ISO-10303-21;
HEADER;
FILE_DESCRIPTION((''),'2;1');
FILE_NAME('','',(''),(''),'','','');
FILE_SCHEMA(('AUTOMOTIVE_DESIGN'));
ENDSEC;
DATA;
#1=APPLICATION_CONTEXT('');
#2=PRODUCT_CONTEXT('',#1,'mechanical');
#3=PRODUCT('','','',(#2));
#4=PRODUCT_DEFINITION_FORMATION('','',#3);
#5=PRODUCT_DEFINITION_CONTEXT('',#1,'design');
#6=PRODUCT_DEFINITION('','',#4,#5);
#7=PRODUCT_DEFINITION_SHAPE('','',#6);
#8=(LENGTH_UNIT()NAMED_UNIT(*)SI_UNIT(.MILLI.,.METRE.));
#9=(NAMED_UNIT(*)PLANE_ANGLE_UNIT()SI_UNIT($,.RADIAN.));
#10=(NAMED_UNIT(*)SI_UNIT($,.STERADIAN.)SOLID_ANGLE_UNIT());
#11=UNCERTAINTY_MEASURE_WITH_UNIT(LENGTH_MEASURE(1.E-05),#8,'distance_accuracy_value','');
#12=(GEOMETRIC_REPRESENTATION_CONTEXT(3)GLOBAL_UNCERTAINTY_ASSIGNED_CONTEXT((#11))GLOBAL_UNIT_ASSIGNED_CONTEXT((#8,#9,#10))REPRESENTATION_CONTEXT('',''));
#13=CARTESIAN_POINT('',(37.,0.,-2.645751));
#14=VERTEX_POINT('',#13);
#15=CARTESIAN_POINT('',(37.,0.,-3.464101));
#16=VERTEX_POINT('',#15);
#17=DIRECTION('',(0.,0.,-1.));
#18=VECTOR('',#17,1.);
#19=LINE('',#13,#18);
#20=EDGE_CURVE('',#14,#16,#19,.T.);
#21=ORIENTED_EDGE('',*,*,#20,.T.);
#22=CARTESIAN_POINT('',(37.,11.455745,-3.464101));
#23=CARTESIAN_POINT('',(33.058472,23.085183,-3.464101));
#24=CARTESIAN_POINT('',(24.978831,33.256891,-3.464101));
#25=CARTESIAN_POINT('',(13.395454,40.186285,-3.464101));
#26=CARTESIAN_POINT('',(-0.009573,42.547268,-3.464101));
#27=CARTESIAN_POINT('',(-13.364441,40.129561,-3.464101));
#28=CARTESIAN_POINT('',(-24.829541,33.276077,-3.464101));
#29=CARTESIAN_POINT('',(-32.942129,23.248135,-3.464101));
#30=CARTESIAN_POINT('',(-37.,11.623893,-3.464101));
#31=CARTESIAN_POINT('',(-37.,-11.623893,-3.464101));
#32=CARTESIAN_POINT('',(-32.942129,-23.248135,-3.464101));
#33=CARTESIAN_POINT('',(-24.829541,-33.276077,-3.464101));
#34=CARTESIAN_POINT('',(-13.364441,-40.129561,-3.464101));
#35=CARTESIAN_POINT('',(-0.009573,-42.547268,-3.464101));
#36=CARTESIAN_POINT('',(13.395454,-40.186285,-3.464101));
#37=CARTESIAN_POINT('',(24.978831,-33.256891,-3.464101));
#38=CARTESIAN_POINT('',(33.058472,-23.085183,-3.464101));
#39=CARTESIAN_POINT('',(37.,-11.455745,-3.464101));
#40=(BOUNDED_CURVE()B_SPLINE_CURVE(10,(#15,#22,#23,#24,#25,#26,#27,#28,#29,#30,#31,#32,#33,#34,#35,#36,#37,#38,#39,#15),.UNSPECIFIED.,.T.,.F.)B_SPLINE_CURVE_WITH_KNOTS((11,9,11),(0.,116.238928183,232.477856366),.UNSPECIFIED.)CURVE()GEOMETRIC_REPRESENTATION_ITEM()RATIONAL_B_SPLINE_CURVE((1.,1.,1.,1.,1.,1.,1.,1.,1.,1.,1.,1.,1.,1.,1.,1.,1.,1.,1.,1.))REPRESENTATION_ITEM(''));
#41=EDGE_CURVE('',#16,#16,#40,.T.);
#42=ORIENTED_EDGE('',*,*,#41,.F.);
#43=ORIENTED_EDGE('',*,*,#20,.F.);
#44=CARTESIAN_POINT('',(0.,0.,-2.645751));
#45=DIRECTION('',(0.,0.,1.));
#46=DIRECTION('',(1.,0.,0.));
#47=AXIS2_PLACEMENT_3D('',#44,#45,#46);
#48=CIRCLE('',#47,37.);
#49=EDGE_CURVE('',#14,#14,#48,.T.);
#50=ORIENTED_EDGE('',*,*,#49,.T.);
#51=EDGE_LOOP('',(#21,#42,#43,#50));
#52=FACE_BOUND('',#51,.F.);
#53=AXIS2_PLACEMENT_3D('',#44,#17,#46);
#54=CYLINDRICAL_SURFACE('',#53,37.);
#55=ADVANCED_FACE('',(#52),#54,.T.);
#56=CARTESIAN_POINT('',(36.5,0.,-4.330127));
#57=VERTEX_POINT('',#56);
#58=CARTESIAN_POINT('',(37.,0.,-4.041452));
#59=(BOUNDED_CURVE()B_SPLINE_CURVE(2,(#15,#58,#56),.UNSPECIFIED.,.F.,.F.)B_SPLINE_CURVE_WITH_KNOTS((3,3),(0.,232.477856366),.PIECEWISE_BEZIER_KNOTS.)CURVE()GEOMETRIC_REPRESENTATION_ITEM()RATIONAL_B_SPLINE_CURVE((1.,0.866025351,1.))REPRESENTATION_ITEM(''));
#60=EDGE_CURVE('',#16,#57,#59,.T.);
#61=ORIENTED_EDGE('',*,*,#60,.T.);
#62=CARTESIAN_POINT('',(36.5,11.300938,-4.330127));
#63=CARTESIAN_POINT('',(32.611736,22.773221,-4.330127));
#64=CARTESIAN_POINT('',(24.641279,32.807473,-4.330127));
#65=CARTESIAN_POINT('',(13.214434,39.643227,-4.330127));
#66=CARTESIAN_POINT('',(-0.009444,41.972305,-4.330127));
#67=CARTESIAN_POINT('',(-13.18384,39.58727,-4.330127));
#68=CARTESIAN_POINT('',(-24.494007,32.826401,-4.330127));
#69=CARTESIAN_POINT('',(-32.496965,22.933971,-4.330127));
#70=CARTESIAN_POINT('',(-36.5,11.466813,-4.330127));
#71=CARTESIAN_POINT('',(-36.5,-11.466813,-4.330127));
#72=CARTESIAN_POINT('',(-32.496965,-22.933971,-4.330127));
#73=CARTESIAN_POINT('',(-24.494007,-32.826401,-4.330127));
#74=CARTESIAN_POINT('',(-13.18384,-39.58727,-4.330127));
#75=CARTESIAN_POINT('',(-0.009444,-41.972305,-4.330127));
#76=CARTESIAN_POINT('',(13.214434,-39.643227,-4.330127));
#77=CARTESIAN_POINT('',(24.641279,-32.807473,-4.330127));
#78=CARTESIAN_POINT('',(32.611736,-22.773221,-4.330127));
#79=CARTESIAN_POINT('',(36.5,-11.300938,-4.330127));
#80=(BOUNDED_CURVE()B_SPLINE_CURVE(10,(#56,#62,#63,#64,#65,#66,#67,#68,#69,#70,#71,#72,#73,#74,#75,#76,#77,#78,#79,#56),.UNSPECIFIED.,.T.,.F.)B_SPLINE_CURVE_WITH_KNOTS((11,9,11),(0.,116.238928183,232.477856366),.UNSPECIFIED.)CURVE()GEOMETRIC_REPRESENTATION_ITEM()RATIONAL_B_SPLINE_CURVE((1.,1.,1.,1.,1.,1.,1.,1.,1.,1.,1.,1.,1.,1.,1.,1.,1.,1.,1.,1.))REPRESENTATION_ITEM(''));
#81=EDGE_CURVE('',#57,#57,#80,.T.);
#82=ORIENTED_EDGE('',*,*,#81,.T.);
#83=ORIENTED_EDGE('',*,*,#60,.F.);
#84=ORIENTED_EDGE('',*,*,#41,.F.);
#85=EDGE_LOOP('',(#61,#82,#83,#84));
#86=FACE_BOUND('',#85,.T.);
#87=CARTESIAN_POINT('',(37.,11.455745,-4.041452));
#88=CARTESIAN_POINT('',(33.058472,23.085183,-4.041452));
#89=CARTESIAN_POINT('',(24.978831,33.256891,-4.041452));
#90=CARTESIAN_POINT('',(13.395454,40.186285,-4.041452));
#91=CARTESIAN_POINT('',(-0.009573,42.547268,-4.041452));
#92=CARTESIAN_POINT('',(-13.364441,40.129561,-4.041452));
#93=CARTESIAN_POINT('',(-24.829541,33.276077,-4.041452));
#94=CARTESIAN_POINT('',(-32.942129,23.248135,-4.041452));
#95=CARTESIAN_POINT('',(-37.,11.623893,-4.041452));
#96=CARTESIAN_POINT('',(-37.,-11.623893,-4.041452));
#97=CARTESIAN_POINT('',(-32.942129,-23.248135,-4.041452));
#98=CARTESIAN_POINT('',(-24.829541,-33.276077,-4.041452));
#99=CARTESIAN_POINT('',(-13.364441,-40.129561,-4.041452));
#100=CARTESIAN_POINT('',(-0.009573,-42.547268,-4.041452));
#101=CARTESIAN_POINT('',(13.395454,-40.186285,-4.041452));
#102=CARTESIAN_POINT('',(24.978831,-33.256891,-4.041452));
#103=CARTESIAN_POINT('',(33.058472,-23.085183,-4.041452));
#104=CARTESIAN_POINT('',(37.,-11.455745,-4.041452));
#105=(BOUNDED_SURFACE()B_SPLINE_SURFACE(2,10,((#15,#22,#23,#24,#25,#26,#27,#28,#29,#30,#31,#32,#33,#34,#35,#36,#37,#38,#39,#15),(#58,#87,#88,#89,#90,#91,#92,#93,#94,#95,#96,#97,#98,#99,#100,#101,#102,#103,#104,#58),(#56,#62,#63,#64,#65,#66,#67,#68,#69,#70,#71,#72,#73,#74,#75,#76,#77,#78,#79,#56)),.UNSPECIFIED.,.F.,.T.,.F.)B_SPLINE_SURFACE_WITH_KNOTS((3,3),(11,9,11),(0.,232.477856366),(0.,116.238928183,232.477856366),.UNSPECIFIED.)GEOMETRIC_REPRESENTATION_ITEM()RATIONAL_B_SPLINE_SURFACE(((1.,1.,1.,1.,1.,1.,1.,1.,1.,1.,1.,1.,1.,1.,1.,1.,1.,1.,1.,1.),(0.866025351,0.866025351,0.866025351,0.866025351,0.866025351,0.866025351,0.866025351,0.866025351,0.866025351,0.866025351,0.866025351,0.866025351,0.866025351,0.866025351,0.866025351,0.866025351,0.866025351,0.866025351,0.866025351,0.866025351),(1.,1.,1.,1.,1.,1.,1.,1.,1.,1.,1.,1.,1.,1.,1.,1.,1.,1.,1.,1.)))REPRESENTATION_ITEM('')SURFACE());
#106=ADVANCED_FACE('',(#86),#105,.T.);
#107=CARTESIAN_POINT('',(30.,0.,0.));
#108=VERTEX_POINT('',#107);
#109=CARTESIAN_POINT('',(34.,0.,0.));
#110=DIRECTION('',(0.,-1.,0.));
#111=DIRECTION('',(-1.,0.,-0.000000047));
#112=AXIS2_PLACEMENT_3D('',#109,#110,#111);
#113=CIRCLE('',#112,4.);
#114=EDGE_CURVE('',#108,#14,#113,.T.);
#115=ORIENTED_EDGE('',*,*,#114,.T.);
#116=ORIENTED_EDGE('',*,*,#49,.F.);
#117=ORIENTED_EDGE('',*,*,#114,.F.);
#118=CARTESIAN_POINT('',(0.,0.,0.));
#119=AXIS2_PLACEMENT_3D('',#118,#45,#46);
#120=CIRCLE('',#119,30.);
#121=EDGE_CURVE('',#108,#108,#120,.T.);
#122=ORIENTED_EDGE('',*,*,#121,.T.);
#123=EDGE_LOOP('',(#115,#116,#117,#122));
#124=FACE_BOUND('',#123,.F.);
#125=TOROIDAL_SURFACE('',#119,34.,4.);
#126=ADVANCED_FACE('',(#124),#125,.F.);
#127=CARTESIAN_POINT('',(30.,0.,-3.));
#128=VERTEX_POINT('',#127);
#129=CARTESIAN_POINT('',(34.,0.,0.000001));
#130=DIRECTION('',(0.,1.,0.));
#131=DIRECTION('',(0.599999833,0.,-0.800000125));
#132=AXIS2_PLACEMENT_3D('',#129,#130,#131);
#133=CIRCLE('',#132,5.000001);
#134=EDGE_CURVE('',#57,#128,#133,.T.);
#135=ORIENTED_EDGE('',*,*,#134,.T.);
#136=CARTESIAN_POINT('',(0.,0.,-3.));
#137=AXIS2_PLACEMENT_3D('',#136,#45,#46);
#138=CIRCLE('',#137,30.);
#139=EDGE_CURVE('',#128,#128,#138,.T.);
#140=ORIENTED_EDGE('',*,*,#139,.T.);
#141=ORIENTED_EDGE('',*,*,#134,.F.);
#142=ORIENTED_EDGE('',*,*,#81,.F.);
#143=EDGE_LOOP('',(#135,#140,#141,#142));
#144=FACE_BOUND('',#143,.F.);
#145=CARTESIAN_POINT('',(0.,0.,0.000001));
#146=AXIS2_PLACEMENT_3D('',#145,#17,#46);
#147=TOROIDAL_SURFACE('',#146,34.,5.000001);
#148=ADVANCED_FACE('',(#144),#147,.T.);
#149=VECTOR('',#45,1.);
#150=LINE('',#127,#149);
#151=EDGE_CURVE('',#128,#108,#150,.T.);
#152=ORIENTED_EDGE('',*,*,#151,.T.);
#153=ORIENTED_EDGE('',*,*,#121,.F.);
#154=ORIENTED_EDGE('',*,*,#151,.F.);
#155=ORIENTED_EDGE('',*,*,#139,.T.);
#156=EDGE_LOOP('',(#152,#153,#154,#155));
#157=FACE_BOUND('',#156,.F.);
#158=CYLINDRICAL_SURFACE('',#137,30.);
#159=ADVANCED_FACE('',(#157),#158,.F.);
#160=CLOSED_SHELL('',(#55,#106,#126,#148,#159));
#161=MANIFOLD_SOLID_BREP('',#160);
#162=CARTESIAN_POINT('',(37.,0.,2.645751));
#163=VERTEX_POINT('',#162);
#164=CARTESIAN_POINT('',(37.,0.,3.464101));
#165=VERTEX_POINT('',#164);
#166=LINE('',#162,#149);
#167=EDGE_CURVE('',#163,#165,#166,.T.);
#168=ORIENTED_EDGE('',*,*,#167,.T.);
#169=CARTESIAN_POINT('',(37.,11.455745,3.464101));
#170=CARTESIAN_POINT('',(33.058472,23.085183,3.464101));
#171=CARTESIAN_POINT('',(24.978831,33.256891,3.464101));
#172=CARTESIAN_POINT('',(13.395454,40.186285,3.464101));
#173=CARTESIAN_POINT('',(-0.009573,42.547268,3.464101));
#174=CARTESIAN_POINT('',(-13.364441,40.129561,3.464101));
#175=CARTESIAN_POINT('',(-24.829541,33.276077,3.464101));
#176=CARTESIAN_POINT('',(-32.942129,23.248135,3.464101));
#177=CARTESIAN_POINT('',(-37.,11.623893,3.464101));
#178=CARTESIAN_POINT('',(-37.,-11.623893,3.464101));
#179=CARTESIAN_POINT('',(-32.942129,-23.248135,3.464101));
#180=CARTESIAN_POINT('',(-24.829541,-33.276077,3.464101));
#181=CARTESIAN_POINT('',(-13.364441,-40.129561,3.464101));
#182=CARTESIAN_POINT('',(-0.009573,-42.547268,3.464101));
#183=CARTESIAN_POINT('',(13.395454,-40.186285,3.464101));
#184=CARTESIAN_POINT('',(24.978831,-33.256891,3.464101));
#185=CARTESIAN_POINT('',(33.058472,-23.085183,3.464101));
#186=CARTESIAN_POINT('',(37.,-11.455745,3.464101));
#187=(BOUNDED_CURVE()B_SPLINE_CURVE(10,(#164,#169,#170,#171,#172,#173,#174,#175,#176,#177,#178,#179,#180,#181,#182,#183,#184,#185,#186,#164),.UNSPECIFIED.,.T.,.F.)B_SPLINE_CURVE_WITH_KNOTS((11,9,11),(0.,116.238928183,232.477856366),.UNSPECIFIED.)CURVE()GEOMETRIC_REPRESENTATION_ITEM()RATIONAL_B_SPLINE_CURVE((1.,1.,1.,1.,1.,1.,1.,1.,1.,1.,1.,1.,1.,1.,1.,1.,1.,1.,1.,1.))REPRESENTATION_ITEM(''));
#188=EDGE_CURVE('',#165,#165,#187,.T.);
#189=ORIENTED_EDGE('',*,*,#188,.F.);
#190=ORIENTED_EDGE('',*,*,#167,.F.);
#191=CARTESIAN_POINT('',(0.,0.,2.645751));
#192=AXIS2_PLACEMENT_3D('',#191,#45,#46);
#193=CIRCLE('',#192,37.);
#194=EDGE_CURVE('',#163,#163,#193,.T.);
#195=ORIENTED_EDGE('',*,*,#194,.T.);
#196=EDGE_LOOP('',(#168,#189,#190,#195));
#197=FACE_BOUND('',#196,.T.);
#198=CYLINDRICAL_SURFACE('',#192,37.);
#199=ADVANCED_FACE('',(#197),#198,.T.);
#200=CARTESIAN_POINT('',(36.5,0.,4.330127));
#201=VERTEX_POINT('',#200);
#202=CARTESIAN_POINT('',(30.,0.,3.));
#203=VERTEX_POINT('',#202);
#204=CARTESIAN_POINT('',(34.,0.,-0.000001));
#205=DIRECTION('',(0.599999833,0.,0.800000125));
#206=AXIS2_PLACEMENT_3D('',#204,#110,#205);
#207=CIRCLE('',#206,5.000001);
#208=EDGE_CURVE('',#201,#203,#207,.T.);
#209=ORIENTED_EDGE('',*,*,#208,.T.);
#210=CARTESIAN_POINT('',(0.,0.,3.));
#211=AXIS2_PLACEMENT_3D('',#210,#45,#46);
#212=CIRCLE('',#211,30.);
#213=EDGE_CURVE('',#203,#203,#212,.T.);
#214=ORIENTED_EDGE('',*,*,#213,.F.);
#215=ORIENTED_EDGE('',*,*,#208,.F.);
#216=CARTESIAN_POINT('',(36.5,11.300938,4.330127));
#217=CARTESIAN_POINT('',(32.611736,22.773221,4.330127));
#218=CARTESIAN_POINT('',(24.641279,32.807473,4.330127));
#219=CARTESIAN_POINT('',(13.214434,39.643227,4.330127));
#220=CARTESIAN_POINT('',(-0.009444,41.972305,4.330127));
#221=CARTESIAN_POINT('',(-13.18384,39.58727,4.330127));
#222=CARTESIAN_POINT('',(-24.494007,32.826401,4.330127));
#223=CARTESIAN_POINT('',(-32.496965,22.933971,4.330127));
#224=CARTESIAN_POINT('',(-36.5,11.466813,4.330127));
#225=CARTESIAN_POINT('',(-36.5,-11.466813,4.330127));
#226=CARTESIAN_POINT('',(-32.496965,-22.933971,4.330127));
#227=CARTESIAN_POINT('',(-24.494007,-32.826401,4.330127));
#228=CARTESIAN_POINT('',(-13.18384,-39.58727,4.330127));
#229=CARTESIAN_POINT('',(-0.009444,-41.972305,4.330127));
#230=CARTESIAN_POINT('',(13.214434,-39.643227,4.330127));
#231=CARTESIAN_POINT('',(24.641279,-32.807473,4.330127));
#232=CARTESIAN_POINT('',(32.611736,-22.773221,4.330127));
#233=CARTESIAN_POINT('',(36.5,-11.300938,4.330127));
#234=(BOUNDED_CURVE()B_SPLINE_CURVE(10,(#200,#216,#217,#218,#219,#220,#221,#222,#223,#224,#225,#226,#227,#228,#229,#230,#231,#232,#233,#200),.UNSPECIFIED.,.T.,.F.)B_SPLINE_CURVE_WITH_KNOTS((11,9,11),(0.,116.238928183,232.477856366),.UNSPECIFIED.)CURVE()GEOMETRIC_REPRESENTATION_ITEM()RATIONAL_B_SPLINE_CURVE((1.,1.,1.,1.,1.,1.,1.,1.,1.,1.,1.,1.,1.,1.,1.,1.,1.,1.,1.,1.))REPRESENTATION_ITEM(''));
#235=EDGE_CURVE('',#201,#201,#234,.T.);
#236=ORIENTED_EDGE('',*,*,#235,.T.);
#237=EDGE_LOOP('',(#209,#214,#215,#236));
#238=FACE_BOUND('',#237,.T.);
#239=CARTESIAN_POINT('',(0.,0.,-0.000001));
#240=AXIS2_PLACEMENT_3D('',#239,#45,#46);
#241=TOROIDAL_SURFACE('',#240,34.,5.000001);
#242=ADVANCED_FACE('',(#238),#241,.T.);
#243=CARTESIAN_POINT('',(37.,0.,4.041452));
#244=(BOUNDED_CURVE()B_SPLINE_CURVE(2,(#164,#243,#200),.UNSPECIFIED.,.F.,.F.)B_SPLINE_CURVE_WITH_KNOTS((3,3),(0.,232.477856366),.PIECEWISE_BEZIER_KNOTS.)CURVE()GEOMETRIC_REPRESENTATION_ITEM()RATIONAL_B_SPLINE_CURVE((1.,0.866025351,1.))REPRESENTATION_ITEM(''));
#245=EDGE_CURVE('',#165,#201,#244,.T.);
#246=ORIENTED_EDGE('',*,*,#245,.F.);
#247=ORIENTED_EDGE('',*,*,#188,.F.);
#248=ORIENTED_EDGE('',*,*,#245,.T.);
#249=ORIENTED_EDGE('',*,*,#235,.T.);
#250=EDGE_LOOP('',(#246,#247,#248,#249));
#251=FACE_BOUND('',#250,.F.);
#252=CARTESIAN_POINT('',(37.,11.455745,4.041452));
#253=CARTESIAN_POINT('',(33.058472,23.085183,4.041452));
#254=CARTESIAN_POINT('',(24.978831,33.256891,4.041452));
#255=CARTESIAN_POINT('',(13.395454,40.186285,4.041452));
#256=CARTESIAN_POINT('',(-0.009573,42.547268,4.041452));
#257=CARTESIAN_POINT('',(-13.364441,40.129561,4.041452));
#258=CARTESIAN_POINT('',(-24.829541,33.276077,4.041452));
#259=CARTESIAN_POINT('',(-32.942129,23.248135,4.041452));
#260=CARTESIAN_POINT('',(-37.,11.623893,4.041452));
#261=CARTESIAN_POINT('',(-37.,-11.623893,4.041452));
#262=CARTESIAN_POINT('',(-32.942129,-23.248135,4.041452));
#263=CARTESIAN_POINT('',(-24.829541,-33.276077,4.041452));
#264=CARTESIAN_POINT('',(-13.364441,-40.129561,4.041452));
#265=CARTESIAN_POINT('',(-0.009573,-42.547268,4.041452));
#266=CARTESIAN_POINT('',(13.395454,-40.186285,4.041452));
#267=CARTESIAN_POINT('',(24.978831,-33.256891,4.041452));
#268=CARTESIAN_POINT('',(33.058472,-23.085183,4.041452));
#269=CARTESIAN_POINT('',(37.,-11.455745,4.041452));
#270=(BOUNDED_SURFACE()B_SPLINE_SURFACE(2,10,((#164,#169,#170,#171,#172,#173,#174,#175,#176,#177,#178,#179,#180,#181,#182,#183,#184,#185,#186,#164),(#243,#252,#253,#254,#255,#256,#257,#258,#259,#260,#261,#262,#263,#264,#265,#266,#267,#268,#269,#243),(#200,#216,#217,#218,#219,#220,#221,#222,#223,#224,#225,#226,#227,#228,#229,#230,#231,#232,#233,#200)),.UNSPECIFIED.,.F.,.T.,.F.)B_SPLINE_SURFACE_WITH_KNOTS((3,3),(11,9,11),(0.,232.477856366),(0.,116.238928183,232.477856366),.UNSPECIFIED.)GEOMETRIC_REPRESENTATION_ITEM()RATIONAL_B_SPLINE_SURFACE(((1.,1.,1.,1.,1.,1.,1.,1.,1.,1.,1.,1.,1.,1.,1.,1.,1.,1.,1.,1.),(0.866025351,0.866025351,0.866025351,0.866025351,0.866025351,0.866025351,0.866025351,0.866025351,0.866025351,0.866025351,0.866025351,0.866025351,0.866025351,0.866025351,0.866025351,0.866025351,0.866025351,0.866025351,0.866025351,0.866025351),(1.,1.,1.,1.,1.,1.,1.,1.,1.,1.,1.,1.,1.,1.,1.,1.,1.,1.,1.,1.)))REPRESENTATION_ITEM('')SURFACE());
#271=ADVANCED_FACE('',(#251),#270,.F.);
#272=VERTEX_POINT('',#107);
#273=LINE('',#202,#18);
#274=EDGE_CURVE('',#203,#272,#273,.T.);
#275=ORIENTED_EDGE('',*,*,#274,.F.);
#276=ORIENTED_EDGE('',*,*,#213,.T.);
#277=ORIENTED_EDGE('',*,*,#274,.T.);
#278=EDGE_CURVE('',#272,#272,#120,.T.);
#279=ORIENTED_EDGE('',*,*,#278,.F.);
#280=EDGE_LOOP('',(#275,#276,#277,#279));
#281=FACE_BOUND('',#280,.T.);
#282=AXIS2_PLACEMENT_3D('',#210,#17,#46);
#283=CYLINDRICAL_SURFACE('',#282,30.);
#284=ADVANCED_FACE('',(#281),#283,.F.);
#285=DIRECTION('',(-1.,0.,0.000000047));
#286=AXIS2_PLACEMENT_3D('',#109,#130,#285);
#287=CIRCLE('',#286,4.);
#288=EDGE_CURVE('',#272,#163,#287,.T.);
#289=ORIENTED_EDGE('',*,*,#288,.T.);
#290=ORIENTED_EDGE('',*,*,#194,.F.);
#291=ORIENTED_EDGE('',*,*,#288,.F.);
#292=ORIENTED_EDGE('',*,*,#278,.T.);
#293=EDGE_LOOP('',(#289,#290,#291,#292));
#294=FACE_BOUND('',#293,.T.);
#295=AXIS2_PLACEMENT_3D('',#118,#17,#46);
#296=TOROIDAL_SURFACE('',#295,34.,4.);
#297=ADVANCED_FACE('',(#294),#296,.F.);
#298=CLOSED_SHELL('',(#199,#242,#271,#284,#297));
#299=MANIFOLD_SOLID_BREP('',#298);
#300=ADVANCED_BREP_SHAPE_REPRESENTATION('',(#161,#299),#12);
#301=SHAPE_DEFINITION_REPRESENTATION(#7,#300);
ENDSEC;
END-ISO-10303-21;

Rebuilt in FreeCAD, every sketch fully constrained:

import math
import FreeCAD as App
import Part
import Sketcher
Q = App.Units.Quantity


def edges_at(feature, points):
    """Names of the edges that pass closest to the given points."""
    edges = feature.Shape.Edges
    near = lambda p: min(range(len(edges)), key=lambda i: edges[i].distToShape(Part.Vertex(*p))[0])
    return sorted({f"Edge{near(p) + 1}" for p in points})

doc = App.newDocument("Part")
body = doc.addObject("PartDesign::Body", "Body")

sketch1 = body.newObject("Sketcher::SketchObject", "Sketch")
sketch1.AttachmentSupport = (doc.getObject("XZ_Plane"), [""])
sketch1.MapMode = "FlatFace"
sketch1.addGeometry([
    Part.LineSegment(App.Vector(30, 3, 0), App.Vector(30, 0, 0)),
    Part.ArcOfCircle(Part.Circle(App.Vector(34, 0, 0), App.Vector(0, 0, 1), 4), math.radians(41), math.radians(180)),
    Part.LineSegment(App.Vector(37, 2.6, 0), App.Vector(37, 4, 0)),
    Part.ArcOfCircle(Part.Circle(App.Vector(34, 0, 0), App.Vector(0, 0, 1), 5), math.radians(53), math.radians(143)),
], False)
sketch1.addConstraint([
    Sketcher.Constraint("Tangent", 0, 2, 1, 2),
    Sketcher.Constraint("Coincident", 1, 1, 2, 1),
    Sketcher.Constraint("Coincident", 2, 2, 3, 1),
    Sketcher.Constraint("Coincident", 3, 2, 0, 1),
    Sketcher.Constraint("Vertical", 0),
    Sketcher.Constraint("Vertical", 2),
    Sketcher.Constraint("Coincident", 3, 3, 1, 3),
    Sketcher.Constraint("PointOnObject", 1, 3, -1),
    Sketcher.Constraint("Radius", 1, Q("4 mm")),
    Sketcher.Constraint("Radius", 3, Q("5.000001 mm")),
    Sketcher.Constraint("DistanceX", -1, 1, 1, 3, Q("34 mm")),
    Sketcher.Constraint("DistanceX", -1, 1, 1, 1, Q("37 mm")),
])
revolution = body.newObject("PartDesign::Revolution", "Revolution")
revolution.Profile = sketch1
revolution.ReferenceAxis = (sketch1, ["V_Axis"])
revolution.Angle = 360
doc.recompute()

fillet = body.newObject("PartDesign::Fillet", "Fillet")
fillet.Base = (revolution, edges_at(revolution, [(-37, 0, 4)]))
fillet.Radius = 1
body2 = doc.addObject("PartDesign::Body", "Body001")
doc.recompute()

mirroring = doc.addObject("Part::Mirroring", "Mirroring")
mirroring.Source = body
mirroring.Base = App.Vector(0, 0, 0)
mirroring.Normal = App.Vector(0, 0, 1)
body2.BaseFeature = mirroring
doc.recompute()
mirroring.Visibility = False

doc.recompute()
